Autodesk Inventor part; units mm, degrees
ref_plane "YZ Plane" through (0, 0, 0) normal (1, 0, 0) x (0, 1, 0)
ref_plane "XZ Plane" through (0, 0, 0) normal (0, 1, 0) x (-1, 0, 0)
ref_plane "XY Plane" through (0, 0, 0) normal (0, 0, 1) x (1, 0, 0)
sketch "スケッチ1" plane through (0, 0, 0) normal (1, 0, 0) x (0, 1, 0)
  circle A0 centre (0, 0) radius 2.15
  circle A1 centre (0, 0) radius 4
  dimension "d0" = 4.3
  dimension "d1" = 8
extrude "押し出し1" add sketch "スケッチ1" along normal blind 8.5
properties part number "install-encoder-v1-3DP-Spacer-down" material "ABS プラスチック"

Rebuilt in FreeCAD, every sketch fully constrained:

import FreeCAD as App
import Part
import Sketcher

V = App.Vector
Q = App.Units.Quantity

doc = App.newDocument("Part")
body = doc.addObject("PartDesign::Body", "Body")

# Sketch on YZ plane
sketch1 = body.newObject("Sketcher::SketchObject", "Sketch")
sketch1.AttachmentSupport = (doc.getObject("YZ_Plane"), [""])
sketch1.MapMode = "FlatFace"
sketch1.addGeometry(Part.Circle(V(0, 0, 0), V(0, 0, 1), 4), False)
sketch1.addGeometry(Part.Circle(V(0, 0, 0), V(0, 0, 1), 2.1), False)
sketch1.addConstraint(Sketcher.Constraint("Coincident", 0, 3, -1, 1))
sketch1.addConstraint(Sketcher.Constraint("Coincident", 1, 3, -1, 1))
sketch1.addConstraint(Sketcher.Constraint("Diameter", 0, Q("8 mm")))
sketch1.addConstraint(Sketcher.Constraint("Diameter", 1, Q("4.3 mm")))
pad1 = body.newObject("PartDesign::Pad", "Pad")
pad1.Profile = sketch1
pad1.Length = 8.5

doc.recompute()
